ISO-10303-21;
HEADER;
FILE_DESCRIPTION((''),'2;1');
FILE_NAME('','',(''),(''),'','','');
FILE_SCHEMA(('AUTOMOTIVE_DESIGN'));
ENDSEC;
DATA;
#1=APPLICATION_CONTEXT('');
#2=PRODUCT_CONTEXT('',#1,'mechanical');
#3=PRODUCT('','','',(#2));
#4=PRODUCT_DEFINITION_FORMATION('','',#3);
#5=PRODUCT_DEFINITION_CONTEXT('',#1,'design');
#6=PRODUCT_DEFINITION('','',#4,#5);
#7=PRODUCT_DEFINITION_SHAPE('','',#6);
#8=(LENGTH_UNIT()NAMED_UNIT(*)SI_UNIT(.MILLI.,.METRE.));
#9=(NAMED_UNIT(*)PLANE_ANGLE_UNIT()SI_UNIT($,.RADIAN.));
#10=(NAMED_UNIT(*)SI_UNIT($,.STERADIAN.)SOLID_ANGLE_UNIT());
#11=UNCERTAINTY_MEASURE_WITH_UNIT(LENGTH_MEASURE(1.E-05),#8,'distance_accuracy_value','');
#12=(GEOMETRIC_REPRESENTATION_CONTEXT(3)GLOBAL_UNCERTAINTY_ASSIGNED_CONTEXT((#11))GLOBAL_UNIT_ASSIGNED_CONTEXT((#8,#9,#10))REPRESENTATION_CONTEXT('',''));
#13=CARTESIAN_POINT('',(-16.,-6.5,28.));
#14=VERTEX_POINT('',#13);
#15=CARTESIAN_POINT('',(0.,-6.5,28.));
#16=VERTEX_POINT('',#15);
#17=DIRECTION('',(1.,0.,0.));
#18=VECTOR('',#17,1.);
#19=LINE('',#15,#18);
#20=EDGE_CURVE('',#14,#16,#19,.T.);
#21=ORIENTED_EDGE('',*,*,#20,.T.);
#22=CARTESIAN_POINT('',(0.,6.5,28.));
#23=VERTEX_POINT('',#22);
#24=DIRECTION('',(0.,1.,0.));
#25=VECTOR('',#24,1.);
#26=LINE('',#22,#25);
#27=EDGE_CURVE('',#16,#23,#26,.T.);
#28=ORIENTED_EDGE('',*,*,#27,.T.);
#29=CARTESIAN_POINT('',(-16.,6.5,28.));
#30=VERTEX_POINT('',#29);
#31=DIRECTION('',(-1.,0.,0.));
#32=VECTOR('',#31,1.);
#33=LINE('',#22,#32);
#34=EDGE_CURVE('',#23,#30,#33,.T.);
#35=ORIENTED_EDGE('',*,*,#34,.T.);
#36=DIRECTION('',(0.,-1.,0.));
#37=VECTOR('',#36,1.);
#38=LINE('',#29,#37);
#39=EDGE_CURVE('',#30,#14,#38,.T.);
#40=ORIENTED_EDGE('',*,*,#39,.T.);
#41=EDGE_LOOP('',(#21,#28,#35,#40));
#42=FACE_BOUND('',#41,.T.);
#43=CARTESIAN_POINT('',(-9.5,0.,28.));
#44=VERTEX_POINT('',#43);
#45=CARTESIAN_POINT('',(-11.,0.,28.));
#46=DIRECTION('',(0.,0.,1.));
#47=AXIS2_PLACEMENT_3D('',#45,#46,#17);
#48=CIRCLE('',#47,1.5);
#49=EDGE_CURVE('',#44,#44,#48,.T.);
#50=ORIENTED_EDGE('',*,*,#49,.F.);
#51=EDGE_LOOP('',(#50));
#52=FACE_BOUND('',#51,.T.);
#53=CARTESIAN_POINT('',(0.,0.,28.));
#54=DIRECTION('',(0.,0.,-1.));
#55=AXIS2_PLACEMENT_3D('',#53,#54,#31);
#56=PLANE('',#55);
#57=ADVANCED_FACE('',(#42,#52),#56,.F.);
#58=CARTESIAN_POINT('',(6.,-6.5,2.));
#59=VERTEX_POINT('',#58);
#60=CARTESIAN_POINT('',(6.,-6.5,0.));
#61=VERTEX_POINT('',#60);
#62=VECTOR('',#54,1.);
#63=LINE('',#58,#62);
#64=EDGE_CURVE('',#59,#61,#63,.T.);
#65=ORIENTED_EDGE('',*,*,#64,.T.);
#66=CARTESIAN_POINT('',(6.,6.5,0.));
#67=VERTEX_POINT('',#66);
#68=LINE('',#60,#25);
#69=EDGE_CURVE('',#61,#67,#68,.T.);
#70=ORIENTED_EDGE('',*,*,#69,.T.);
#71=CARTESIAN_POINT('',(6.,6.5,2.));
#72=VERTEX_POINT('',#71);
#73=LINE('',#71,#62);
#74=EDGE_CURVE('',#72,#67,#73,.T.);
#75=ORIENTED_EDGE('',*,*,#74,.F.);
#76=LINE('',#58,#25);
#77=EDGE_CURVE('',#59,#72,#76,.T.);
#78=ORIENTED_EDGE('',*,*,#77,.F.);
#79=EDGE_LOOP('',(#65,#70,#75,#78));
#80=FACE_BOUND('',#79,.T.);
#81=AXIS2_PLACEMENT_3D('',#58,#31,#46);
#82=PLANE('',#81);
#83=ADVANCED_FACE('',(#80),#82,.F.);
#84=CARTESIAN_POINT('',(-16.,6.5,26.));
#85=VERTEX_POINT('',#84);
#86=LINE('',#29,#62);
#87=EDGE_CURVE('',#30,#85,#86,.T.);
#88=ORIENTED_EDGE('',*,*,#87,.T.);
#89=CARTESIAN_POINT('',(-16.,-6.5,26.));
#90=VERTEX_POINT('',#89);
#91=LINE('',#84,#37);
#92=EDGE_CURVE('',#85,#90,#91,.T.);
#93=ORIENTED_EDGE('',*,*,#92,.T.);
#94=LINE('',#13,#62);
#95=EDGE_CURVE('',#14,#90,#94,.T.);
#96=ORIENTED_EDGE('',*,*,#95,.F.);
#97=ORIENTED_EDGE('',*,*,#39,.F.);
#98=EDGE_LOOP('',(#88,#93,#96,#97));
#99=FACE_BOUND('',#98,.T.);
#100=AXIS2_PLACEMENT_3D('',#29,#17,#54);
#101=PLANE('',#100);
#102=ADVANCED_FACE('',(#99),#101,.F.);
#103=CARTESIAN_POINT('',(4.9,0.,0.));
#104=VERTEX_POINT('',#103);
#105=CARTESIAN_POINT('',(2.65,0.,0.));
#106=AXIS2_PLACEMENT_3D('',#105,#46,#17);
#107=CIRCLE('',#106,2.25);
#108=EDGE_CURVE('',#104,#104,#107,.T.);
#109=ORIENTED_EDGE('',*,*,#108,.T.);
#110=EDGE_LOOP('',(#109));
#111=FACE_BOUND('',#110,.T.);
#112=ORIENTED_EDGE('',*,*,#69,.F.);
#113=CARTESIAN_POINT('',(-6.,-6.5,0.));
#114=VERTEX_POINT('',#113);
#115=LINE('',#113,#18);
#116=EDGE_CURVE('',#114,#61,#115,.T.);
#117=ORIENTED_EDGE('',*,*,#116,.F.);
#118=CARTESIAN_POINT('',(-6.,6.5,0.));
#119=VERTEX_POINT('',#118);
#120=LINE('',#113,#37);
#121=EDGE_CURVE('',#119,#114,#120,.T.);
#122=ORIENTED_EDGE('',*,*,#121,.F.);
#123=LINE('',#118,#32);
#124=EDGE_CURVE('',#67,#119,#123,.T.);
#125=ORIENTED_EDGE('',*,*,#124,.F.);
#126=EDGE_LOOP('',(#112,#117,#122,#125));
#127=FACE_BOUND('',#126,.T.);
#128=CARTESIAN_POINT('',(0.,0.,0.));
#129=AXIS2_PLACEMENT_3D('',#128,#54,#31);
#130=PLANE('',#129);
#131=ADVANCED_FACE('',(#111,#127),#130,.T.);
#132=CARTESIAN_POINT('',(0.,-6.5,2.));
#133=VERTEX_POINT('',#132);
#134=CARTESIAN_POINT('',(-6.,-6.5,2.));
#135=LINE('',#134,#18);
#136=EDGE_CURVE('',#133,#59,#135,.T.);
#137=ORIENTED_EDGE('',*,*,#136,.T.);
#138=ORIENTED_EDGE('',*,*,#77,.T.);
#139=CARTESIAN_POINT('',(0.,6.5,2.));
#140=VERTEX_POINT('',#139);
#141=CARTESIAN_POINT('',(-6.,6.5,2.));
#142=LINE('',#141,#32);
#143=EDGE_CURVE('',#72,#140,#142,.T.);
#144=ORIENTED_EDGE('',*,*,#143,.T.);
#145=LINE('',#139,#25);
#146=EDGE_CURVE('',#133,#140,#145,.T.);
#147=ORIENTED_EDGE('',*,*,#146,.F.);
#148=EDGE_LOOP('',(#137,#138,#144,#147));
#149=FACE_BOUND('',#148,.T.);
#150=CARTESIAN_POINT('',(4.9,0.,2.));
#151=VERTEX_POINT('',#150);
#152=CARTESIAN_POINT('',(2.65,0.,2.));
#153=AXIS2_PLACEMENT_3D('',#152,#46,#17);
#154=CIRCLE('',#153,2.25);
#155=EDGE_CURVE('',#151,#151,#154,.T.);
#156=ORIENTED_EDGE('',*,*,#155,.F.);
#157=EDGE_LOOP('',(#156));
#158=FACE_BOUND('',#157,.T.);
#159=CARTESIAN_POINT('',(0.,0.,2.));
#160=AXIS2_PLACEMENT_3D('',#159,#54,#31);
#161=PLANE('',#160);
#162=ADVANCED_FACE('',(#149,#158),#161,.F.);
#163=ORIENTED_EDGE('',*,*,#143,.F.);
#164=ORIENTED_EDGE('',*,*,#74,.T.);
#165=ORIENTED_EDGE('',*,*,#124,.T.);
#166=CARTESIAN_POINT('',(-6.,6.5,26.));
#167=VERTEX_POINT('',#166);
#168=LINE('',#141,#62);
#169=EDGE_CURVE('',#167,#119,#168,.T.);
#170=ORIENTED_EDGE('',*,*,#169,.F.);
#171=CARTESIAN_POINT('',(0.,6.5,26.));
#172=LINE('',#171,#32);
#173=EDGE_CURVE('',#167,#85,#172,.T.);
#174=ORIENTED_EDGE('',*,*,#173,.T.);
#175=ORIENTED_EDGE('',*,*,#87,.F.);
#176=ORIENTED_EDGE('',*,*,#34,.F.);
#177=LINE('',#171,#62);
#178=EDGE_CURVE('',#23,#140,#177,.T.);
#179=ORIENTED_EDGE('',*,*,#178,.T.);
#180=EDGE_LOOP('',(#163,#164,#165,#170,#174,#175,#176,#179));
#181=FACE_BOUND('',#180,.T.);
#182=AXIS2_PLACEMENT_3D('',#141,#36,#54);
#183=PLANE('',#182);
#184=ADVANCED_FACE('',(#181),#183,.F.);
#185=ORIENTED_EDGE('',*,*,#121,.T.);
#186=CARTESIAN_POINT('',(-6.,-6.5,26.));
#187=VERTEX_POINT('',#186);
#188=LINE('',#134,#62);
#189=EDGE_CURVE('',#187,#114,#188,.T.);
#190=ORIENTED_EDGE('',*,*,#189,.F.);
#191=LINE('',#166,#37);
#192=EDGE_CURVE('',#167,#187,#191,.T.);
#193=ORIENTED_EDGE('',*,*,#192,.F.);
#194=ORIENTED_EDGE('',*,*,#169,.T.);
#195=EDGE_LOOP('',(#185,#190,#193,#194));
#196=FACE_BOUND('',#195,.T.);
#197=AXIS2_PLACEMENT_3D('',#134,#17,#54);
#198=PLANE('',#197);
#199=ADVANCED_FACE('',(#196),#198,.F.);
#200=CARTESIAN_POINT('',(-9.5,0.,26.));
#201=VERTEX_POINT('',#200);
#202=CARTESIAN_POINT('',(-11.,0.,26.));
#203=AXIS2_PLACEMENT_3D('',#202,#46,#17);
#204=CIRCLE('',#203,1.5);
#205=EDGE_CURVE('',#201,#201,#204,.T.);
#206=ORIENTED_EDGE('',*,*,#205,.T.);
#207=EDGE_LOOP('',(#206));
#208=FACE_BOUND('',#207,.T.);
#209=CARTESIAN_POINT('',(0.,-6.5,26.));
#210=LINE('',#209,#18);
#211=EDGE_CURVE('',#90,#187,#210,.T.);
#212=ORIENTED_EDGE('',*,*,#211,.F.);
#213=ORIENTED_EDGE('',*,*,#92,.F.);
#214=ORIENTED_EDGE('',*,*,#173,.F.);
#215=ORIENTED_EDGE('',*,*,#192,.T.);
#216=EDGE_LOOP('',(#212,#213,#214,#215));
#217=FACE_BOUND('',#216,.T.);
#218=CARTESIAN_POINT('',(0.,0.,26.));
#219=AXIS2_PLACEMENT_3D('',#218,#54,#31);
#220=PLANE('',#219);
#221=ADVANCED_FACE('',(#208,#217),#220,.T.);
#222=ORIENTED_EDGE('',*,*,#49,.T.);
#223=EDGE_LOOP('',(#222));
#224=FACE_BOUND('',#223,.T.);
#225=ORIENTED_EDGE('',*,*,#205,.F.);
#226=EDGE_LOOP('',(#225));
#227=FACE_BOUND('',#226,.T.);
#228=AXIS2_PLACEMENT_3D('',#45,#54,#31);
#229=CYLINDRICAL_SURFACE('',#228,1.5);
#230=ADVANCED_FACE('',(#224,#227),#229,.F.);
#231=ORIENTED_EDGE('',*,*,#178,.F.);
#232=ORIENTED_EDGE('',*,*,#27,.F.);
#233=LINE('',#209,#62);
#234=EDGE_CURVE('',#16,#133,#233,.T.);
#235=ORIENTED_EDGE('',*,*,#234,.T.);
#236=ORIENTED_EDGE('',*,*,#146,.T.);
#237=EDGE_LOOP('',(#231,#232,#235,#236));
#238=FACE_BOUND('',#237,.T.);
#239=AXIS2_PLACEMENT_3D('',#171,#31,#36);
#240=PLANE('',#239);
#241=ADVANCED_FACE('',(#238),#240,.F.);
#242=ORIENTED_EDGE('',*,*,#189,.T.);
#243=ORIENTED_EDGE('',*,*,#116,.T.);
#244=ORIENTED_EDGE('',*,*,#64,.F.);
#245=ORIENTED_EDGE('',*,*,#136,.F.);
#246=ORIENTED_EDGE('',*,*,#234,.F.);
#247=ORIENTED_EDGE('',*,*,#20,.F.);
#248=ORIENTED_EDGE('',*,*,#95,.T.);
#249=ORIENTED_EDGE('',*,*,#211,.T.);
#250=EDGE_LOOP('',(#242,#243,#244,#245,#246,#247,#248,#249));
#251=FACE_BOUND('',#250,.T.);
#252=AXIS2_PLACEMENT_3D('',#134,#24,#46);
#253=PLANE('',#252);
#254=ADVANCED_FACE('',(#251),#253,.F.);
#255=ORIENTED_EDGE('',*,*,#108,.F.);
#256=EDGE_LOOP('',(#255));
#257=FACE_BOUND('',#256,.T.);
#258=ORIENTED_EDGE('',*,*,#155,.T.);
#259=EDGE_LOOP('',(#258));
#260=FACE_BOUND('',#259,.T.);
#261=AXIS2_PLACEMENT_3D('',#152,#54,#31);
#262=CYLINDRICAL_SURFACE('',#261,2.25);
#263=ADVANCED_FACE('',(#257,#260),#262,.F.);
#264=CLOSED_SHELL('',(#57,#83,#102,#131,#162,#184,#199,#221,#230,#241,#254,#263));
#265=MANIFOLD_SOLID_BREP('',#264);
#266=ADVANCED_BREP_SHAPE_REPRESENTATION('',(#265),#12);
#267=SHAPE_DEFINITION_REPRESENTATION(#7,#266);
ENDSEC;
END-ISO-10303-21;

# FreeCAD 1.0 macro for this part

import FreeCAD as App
import Part
import Sketcher

V = App.Vector
Q = App.Units.Quantity


def add_polygon(sketch, points):
    """Adds a closed chain of lines whose ends are joined by coincident constraints."""
    first, n = sketch.GeometryCount, len(points)
    for a, b in zip(points, points[1:] + points[:1]):
        sketch.addGeometry(Part.LineSegment(App.Vector(*a, 0), App.Vector(*b, 0)), False)
    for i in range(n):
        sketch.addConstraint(Sketcher.Constraint("Coincident", first + i, 2, first + (i + 1) % n, 1))

doc = App.newDocument("Part")
body = doc.addObject("PartDesign::Body", "Body")

# Sketch on XY plane
sketch1 = body.newObject("Sketcher::SketchObject", "Sketch")
sketch1.AttachmentSupport = (doc.getObject("XY_Plane"), [""])
sketch1.MapMode = "FlatFace"
add_polygon(sketch1, [(-6, 6.5), (-6, -6.5), (6, -6.5), (6, 6.5)])  # lines 0-3
sketch1.addGeometry(Part.Circle(V(2.6, 0, 0), V(0, 0, 1), 2.2), False)  # 4
sketch1.addConstraint(Sketcher.Constraint("Vertical", 0))
sketch1.addConstraint(Sketcher.Constraint("Horizontal", 1))
sketch1.addConstraint(Sketcher.Constraint("Vertical", 2))
sketch1.addConstraint(Sketcher.Constraint("Horizontal", 3))
sketch1.addConstraint(Sketcher.Constraint("Symmetric", 0, 2, 2, 2, -1, 1))
sketch1.addConstraint(Sketcher.Constraint("PointOnObject", 4, 3, -1))
sketch1.addConstraint(Sketcher.Constraint("Diameter", 4, Q("4.5 mm")))
sketch1.addConstraint(Sketcher.Constraint("DistanceX", 1, 1, 1, 2, Q("12 mm")))
sketch1.addConstraint(Sketcher.Constraint("DistanceY", 0, 2, 0, 1, Q("13 mm")))
sketch1.addConstraint(Sketcher.Constraint("DistanceX", -1, 1, 4, 3, Q("2.65 mm")))
pad1 = body.newObject("PartDesign::Pad", "Pad")
pad1.Profile = sketch1
pad1.Length = 2

# Sketch on XY plane
sketch2 = body.newObject("Sketcher::SketchObject", "Sketch001")
sketch2.AttachmentSupport = (doc.getObject("XY_Plane"), [""])
sketch2.MapMode = "FlatFace"
sketch2.AttachmentOffset = App.Placement(V(0, 0, 2), App.Rotation())
add_polygon(sketch2, [(-6, 6), (-6, -6), (0, -6), (0, 6)])  # lines 0-3
sketch2.addConstraint(Sketcher.Constraint("Vertical", 0))
sketch2.addConstraint(Sketcher.Constraint("Horizontal", 1))
sketch2.addConstraint(Sketcher.Constraint("Vertical", 2))
sketch2.addConstraint(Sketcher.Constraint("Horizontal", 3))
sketch2.addConstraint(Sketcher.Constraint("Symmetric", 1, 2, 2, 2, -1, 1))
sketch2.addConstraint(Sketcher.Constraint("DistanceX", 1, 1, 1, 2, Q("6 mm")))
sketch2.addConstraint(Sketcher.Constraint("DistanceY", 0, 2, 0, 1, Q("13 mm")))
pad2 = body.newObject("PartDesign::Pad", "Pad001")
pad2.Profile = sketch2
pad2.Length = 24

# Sketch on XY plane
sketch3 = body.newObject("Sketcher::SketchObject", "Sketch002")
sketch3.AttachmentSupport = (doc.getObject("XY_Plane"), [""])
sketch3.MapMode = "FlatFace"
sketch3.AttachmentOffset = App.Placement(V(0, 0, 26), App.Rotation())
add_polygon(sketch3, [(-16, 6.5), (-16, -6.5), (0, -6.5), (0, 6.5)])  # lines 0-3
sketch3.addGeometry(Part.Circle(V(-11, 0, 0), V(0, 0, 1), 1.5), False)  # 4
sketch3.addConstraint(Sketcher.Constraint("Vertical", 0))
sketch3.addConstraint(Sketcher.Constraint("Horizontal", 1))
sketch3.addConstraint(Sketcher.Constraint("Vertical", 2))
sketch3.addConstraint(Sketcher.Constraint("Horizontal", 3))
sketch3.addConstraint(Sketcher.Constraint("Symmetric", 1, 2, 2, 2, -1, 1))
sketch3.addConstraint(Sketcher.Constraint("PointOnObject", 4, 3, -1))
sketch3.addConstraint(Sketcher.Constraint("Diameter", 4, Q("3 mm")))
sketch3.addConstraint(Sketcher.Constraint("DistanceX", 1, 1, 1, 2, Q("16 mm")))
sketch3.addConstraint(Sketcher.Constraint("DistanceY", 0, 2, 0, 1, Q("13 mm")))
sketch3.addConstraint(Sketcher.Constraint("DistanceX", 4, 3, -1, 1, Q("11 mm")))
pad3 = body.newObject("PartDesign::Pad", "Pad002")
pad3.Profile = sketch3
pad3.Length = 2

doc.recompute()
